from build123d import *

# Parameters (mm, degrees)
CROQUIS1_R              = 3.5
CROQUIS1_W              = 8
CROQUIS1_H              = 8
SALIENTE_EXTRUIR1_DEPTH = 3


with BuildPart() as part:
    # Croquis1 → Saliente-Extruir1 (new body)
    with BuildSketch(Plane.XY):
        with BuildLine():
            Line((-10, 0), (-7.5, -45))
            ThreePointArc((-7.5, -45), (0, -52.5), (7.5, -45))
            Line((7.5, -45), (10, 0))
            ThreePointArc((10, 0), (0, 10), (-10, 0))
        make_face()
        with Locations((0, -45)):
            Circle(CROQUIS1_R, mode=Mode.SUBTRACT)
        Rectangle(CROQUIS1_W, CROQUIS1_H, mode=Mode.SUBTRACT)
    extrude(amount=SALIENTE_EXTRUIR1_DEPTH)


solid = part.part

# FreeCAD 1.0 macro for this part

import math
import FreeCAD as App
import Part
import Sketcher
from FreeCAD import Vector

doc = App.newDocument("Part")
params = doc.addObject("Spreadsheet::Sheet", "Params")
for row, (alias, value) in enumerate([
    ("sketch1_diameter", "7 mm"),
    ("sketch1_radius", "10 mm"),
    ("sketch1_radius2", "7.5 mm"),
    ("sketch1_width", "8 mm"),
    ("pad1_length", "3 mm"),
], start=1):
    params.set(f"A{row}", alias)
    params.set(f"B{row}", "=" + value)
    params.setAlias(f"B{row}", alias)

body = doc.addObject("PartDesign::Body", "Body")

sketch1 = body.newObject("Sketcher::SketchObject", "Sketch")
sketch1.AttachmentSupport = (doc.getObject("XY_Plane"), [""])
sketch1.MapMode = "FlatFace"
sketch1.addGeometry(Part.LineSegment(Vector(-10, 0, 0), Vector(-7.5, -45, 0)), False)
sketch1.addGeometry(Part.ArcOfCircle(Part.Circle(Vector(0, -45, 0), Vector(0, 0, 1), 7.5), math.radians(180), math.radians(360)), False)
sketch1.addGeometry(Part.LineSegment(Vector(7.5, -45, 0), Vector(10, 0, 0)), False)
sketch1.addGeometry(Part.ArcOfCircle(Part.Circle(Vector(0, 0, 0), Vector(0, 0, 1), 10), math.radians(0), math.radians(180)), False)
sketch1.addGeometry(Part.Circle(Vector(0, -45, 0), Vector(0, 0, 1), 3.5), False)
sketch1.addGeometry(Part.LineSegment(Vector(4, -4, 0), Vector(-4, -4, 0)), False)
sketch1.addGeometry(Part.LineSegment(Vector(-4, -4, 0), Vector(-4, 4, 0)), False)
sketch1.addGeometry(Part.LineSegment(Vector(-4, 4, 0), Vector(4, 4, 0)), False)
sketch1.addGeometry(Part.LineSegment(Vector(4, 4, 0), Vector(4, -4, 0)), False)
sketch1.addConstraint(Sketcher.Constraint("Coincident", 0, 2, 1, 1))
sketch1.addConstraint(Sketcher.Constraint("Coincident", 1, 2, 2, 1))
sketch1.addConstraint(Sketcher.Constraint("Coincident", 2, 2, 3, 1))
sketch1.addConstraint(Sketcher.Constraint("Coincident", 3, 2, 0, 1))
sketch1.addConstraint(Sketcher.Constraint("Coincident", 5, 2, 6, 1))
sketch1.addConstraint(Sketcher.Constraint("Coincident", 6, 2, 7, 1))
sketch1.addConstraint(Sketcher.Constraint("Coincident", 7, 2, 8, 1))
sketch1.addConstraint(Sketcher.Constraint("Coincident", 8, 2, 5, 1))
sketch1.addConstraint(Sketcher.Constraint("Horizontal", 5))
sketch1.addConstraint(Sketcher.Constraint("Vertical", 6))
sketch1.addConstraint(Sketcher.Constraint("Horizontal", 7))
sketch1.addConstraint(Sketcher.Constraint("Vertical", 8))
sketch1.addConstraint(Sketcher.Constraint("Coincident", 3, 3, -1, 1))
sketch1.addConstraint(Sketcher.Constraint("Coincident", 4, 3, 1, 3))
sketch1.addConstraint(Sketcher.Constraint("Symmetric", 5, 2, 7, 2, -1, 1))
sketch1.addConstraint(Sketcher.Constraint("Symmetric", 0, 2, 1, 2, -2))
sketch1.addConstraint(Sketcher.Constraint("PointOnObject", 2, 2, -1))
sketch1.addConstraint(Sketcher.Constraint("PointOnObject", 3, 2, -1))
sketch1.addConstraint(Sketcher.Constraint("Horizontal", 4, 3, 0, 2))
sketch1.addConstraint(Sketcher.Constraint("Equal", 7, 6))
sketch1.addConstraint(Sketcher.Constraint("Diameter", 4, 7.0))
sketch1.addConstraint(Sketcher.Constraint("Radius", 3, 10.0))
sketch1.addConstraint(Sketcher.Constraint("Radius", 1, 7.5))
sketch1.addConstraint(Sketcher.Constraint("DistanceX", 5, 2, 5, 1, 8.0))
sketch1.addConstraint(Sketcher.Constraint("DistanceY", 1, 3, -1, 1, 45.0))
sketch1.setExpression("Constraints[20]", "Params.sketch1_diameter")
sketch1.setExpression("Constraints[21]", "Params.sketch1_radius")
sketch1.setExpression("Constraints[22]", "Params.sketch1_radius2")
sketch1.setExpression("Constraints[23]", "Params.sketch1_width")
pad1 = body.newObject("PartDesign::Pad", "Pad")
pad1.Profile = sketch1
pad1.setExpression("Length", "Params.pad1_length")

doc.recompute()
